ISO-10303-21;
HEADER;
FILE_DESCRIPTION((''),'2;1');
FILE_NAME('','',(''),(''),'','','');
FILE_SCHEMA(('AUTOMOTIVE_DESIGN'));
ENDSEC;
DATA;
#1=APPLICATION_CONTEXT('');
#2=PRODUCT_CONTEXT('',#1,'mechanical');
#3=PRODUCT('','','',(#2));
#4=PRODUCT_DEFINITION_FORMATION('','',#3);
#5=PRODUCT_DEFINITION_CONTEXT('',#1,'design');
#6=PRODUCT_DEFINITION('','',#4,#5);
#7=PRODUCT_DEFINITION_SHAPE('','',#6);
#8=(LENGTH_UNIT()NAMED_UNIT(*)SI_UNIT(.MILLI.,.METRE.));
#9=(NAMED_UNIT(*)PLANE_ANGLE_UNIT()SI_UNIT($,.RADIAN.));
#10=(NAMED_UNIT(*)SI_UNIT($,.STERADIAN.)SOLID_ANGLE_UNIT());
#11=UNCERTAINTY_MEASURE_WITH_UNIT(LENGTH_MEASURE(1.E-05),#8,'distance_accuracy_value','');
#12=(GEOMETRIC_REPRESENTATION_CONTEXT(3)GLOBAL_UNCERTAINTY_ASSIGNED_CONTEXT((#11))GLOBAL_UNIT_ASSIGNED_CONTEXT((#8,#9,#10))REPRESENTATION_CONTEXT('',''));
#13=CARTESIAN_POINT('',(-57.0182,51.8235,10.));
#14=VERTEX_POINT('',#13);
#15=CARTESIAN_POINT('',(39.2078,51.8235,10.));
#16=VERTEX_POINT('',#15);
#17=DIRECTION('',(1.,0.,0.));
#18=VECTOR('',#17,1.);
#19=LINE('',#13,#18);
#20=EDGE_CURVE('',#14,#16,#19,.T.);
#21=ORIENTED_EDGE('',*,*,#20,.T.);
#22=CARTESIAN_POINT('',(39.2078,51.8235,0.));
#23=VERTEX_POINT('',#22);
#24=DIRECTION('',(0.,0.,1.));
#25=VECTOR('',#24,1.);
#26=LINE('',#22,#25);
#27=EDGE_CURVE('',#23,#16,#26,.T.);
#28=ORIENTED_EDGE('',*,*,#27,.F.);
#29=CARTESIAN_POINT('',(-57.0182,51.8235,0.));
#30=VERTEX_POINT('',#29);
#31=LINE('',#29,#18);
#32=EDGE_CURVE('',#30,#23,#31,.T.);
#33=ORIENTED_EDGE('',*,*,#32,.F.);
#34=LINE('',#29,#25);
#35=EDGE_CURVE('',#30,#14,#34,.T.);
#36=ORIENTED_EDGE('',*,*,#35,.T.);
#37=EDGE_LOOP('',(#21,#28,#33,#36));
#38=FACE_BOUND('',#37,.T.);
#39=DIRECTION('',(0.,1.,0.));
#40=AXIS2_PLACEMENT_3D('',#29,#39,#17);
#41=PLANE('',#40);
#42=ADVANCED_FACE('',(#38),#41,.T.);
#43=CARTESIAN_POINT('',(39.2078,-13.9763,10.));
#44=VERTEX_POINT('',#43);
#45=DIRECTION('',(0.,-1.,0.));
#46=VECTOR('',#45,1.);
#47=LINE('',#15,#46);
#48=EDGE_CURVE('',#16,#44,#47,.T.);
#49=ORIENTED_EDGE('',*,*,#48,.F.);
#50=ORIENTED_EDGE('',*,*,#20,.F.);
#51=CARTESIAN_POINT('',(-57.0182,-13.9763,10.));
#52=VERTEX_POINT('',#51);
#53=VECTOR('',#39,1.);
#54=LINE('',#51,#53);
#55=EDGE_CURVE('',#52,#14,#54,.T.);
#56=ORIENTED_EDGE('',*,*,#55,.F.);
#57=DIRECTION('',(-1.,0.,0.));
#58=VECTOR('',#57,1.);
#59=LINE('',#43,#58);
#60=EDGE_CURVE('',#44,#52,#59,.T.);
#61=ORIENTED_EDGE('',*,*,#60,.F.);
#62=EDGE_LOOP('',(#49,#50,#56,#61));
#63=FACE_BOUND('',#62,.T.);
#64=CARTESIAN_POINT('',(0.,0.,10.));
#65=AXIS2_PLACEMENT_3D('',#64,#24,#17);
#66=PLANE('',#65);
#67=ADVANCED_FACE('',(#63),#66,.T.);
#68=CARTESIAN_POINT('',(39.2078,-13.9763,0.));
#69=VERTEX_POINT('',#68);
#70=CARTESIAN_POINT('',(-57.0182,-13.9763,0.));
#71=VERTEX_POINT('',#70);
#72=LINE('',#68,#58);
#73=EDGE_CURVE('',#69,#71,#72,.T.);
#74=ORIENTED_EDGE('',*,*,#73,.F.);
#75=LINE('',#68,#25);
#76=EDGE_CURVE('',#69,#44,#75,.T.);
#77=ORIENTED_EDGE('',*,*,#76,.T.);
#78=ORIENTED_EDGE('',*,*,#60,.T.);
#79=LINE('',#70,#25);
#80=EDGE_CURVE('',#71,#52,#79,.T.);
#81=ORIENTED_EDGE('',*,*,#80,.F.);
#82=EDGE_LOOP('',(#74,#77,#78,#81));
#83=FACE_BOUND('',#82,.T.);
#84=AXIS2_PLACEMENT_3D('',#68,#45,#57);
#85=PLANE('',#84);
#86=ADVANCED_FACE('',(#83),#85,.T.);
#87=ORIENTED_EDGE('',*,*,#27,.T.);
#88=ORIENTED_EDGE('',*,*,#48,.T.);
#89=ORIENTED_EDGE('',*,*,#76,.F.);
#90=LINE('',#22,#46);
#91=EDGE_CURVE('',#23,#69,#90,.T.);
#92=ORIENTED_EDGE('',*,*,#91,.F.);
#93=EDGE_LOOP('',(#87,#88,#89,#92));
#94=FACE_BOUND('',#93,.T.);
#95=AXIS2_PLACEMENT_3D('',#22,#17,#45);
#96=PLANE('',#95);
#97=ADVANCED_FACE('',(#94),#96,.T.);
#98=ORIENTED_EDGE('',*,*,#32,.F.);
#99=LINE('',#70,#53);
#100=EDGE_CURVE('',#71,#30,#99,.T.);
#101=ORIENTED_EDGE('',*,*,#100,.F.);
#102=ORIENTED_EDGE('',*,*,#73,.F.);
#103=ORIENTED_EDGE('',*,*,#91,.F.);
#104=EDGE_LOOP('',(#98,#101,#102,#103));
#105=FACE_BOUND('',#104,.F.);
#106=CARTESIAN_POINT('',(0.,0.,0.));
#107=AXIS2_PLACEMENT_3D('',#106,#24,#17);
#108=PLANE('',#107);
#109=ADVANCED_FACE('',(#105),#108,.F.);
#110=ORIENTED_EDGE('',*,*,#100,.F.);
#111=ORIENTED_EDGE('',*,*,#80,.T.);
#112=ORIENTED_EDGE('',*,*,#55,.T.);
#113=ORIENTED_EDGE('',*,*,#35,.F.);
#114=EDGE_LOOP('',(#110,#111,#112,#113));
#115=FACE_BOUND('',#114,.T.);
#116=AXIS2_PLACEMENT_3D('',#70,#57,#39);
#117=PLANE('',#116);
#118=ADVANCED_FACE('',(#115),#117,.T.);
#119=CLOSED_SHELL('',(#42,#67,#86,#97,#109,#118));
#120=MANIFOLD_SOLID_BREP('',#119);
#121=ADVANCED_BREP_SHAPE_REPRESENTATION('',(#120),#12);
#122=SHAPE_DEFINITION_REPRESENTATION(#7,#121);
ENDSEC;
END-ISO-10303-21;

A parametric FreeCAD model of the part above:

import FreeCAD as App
import Part
import Sketcher

V = App.Vector

doc = App.newDocument("Part")
body = doc.addObject("PartDesign::Body", "Body")

sketch1 = body.newObject("Sketcher::SketchObject", "Sketch")
sketch1.AttachmentSupport = (doc.getObject("XY_Plane"), [""])
sketch1.MapMode = "FlatFace"
sketch1.addGeometry([
    Part.LineSegment(V(39.2078, 51.8235, 0), V(-57.0182, 51.8235, 0)),
    Part.LineSegment(V(-57.0182, 51.8235, 0), V(-57.0182, -13.9763, 0)),
    Part.LineSegment(V(-57.0182, -13.9763, 0), V(39.2078, -13.9763, 0)),
    Part.LineSegment(V(39.2078, -13.9763, 0), V(39.2078, 51.8235, 0)),
], False)
sketch1.addConstraint([
    Sketcher.Constraint("Coincident", 0, 2, 1, 1),
    Sketcher.Constraint("Coincident", 1, 2, 2, 1),
    Sketcher.Constraint("Coincident", 2, 2, 3, 1),
    Sketcher.Constraint("Coincident", 3, 2, 0, 1),
    Sketcher.Constraint("Horizontal", 0),
    Sketcher.Constraint("Vertical", 1),
    Sketcher.Constraint("Horizontal", 2),
    Sketcher.Constraint("Vertical", 3),
    Sketcher.Constraint("DistanceX", 0, 2, 0, 1, 96.226),
    Sketcher.Constraint("DistanceY", 1, 2, 1, 1, 65.7998),
    Sketcher.Constraint("DistanceX", 0, 2, -1, 1, 57.0182),
    Sketcher.Constraint("DistanceY", -1, 1, 0, 2, 51.8235),
])
pad1 = body.newObject("PartDesign::Pad", "Pad")
pad1.Profile = sketch1
pad1.Length = 10

doc.recompute()
